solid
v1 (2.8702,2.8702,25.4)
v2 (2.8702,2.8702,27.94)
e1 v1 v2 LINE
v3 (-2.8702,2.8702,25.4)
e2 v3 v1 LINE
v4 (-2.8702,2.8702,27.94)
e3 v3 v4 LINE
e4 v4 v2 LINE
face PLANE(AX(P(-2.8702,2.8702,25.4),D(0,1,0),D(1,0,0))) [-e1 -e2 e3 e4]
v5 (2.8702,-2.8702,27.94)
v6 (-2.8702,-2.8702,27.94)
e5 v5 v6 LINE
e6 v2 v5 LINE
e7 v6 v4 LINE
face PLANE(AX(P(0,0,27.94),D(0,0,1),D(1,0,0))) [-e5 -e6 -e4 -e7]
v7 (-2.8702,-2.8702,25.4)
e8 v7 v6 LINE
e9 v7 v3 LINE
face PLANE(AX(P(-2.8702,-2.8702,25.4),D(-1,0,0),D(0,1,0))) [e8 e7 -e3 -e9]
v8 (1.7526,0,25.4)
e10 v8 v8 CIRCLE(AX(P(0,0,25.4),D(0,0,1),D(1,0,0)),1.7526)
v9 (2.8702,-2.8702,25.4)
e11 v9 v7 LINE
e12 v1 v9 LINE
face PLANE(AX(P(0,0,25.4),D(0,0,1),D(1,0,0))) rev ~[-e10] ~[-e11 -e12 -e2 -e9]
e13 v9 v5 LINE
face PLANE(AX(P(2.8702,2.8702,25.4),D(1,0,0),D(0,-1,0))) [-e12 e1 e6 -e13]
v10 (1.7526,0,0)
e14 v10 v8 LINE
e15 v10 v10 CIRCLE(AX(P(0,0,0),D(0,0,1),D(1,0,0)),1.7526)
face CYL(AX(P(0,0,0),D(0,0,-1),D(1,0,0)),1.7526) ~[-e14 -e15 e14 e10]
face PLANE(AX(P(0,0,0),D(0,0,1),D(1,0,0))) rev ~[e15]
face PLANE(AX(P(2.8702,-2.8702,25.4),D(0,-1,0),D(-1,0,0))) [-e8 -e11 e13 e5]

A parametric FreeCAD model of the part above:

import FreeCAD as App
import Part
import Sketcher
Q = App.Units.Quantity

doc = App.newDocument("Part")
body = doc.addObject("PartDesign::Body", "Body")

# Sketch on XY plane
sketch1 = body.newObject("Sketcher::SketchObject", "Sketch")
sketch1.AttachmentSupport = (doc.getObject("XY_Plane"), [""])
sketch1.MapMode = "FlatFace"
sketch1.addGeometry(Part.Circle(App.Vector(0, 0, 0), App.Vector(0, 0, 1), 1.8), False)
sketch1.addConstraint([
    Sketcher.Constraint("Coincident", 0, 3, -1, 1),
    Sketcher.Constraint("Diameter", 0, Q("0.138 in")),
])
pad1 = body.newObject("PartDesign::Pad", "Pad")
pad1.Profile = sketch1
pad1.Length = Q("1 in")

# Sketch on XY plane
sketch2 = body.newObject("Sketcher::SketchObject", "Sketch001")
sketch2.AttachmentSupport = (doc.getObject("XY_Plane"), [""])
sketch2.MapMode = "FlatFace"
sketch2.AttachmentOffset = App.Placement(App.Vector(0, 0, 1 * 25.4), App.Rotation())
sketch2.addGeometry([
    Part.LineSegment(App.Vector(3, 3, 0), App.Vector(-3, 3, 0)),
    Part.LineSegment(App.Vector(-3, 3, 0), App.Vector(-3, -3, 0)),
    Part.LineSegment(App.Vector(-3, -3, 0), App.Vector(3, -3, 0)),
    Part.LineSegment(App.Vector(3, -3, 0), App.Vector(3, 3, 0)),
], False)
sketch2.addConstraint([
    Sketcher.Constraint("Coincident", 0, 2, 1, 1),
    Sketcher.Constraint("Coincident", 1, 2, 2, 1),
    Sketcher.Constraint("Coincident", 2, 2, 3, 1),
    Sketcher.Constraint("Coincident", 3, 2, 0, 1),
    Sketcher.Constraint("Horizontal", 0),
    Sketcher.Constraint("Vertical", 1),
    Sketcher.Constraint("Horizontal", 2),
    Sketcher.Constraint("Vertical", 3),
    Sketcher.Constraint("Symmetric", 0, 2, 2, 2, -1, 1),
    Sketcher.Constraint("Equal", 2, 1),
    Sketcher.Constraint("DistanceX", 0, 2, 0, 1, Q("0.226 in")),
])
pad2 = body.newObject("PartDesign::Pad", "Pad001")
pad2.Profile = sketch2
pad2.Length = Q("0.1 in")

doc.recompute()
